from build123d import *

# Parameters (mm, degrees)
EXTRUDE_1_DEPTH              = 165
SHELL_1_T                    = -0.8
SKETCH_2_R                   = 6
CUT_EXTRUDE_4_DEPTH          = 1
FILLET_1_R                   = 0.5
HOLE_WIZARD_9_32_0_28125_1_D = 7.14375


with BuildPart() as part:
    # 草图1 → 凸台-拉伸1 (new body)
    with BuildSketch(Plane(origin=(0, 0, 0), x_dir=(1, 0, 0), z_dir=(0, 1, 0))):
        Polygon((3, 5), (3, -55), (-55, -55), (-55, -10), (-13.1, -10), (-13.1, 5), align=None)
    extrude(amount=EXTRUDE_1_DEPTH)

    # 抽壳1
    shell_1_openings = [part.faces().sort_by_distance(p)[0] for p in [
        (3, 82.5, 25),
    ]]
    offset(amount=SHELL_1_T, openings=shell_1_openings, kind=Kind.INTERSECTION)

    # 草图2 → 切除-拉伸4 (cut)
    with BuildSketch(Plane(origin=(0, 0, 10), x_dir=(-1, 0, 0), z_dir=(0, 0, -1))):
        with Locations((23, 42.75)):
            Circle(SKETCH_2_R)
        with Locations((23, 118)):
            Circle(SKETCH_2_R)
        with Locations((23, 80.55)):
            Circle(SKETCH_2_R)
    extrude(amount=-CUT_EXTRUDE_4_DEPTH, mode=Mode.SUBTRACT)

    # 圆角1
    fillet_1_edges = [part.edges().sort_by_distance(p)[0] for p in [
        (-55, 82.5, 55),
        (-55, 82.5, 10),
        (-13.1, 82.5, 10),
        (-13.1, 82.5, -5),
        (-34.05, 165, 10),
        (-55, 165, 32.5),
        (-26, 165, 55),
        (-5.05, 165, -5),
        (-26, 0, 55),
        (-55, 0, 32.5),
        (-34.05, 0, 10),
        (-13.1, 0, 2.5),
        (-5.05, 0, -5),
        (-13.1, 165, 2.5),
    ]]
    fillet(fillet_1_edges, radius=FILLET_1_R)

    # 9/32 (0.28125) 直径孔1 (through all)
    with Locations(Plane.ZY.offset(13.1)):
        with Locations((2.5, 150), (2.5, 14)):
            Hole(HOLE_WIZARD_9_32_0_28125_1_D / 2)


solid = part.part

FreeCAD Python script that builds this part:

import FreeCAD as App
import Part
import Sketcher
Q = App.Units.Quantity


def edges_at(feature, points):
    """Names of the edges that pass closest to the given points."""
    edges = feature.Shape.Edges
    near = lambda p: min(range(len(edges)), key=lambda i: edges[i].distToShape(Part.Vertex(*p))[0])
    return sorted({f"Edge{near(p) + 1}" for p in points})


def faces_at(feature, points):
    """Names of the faces that lie closest to the given points."""
    faces = feature.Shape.Faces
    near = lambda p: min(range(len(faces)), key=lambda i: faces[i].distToShape(Part.Vertex(*p))[0])
    return sorted({f"Face{near(p) + 1}" for p in points})


def add_polygon(sketch, points):
    """Adds a closed chain of lines whose ends are joined by coincident constraints."""
    first, n = sketch.GeometryCount, len(points)
    for a, b in zip(points, points[1:] + points[:1]):
        sketch.addGeometry(Part.LineSegment(App.Vector(*a, 0), App.Vector(*b, 0)), False)
    for i in range(n):
        sketch.addConstraint(Sketcher.Constraint("Coincident", first + i, 2, first + (i + 1) % n, 1))

doc = App.newDocument("Part")
body = doc.addObject("PartDesign::Body", "Body")

# Sketch on XZ plane
sketch1 = doc.addObject("Sketcher::SketchObject", "Sketch")
body.addObject(sketch1)
sketch1.AttachmentSupport = (doc.XZ_Plane, [""])
sketch1.MapMode = "FlatFace"
add_polygon(sketch1, [(3, 55), (3, -5), (-13.1, -5), (-13.1, 10), (-55, 10), (-55, 55)])  # lines 0-5
sketch1.addConstraint([
    Sketcher.Constraint("Vertical", 0),
    Sketcher.Constraint("Horizontal", 1),
    Sketcher.Constraint("Vertical", 2),
    Sketcher.Constraint("Horizontal", 3),
    Sketcher.Constraint("Vertical", 4),
    Sketcher.Constraint("Horizontal", 5),
    Sketcher.Constraint("DistanceX", 5, 1, 5, 2, Q("58 mm")),
    Sketcher.Constraint("DistanceY", 0, 2, 0, 1, Q("60 mm")),
    Sketcher.Constraint("DistanceY", 2, 1, 2, 2, Q("15 mm")),
    Sketcher.Constraint("DistanceX", 1, 2, 1, 1, Q("16.1 mm")),
    Sketcher.Constraint("DistanceX", -1, 1, 0, 2, Q("3 mm")),
    Sketcher.Constraint("DistanceY", 0, 2, -1, 1, Q("5 mm")),
])
pad1 = doc.addObject("PartDesign::Pad", "Pad")
body.addObject(pad1)
pad1.Profile = sketch1
pad1.Length = 165
pad1.Reversed = True
doc.recompute()

thickness = doc.addObject("PartDesign::Thickness", "Thickness")
body.addObject(thickness)
thickness.Base = (pad1, faces_at(pad1, [(3, 82.5, 25)]))
thickness.Value = 0.8
thickness.Reversed = True
thickness.Join = "Intersection"

# Sketch on XY plane
sketch2 = doc.addObject("Sketcher::SketchObject", "Sketch001")
body.addObject(sketch2)
sketch2.AttachmentSupport = (doc.XY_Plane, [""])
sketch2.MapMode = "FlatFace"
sketch2.AttachmentOffset = App.Placement(App.Vector(0, 0, 10), App.Rotation())
sketch2.addGeometry([
    Part.Circle(App.Vector(-23, 42.75, 0), App.Vector(0, 0, 1), 6),
    Part.Circle(App.Vector(-23, 118, 0), App.Vector(0, 0, 1), 6),
    Part.Circle(App.Vector(-23, 80.55, 0), App.Vector(0, 0, 1), 6),
], False)
sketch2.addConstraint([
    Sketcher.Constraint("Equal", 0, 1),
    Sketcher.Constraint("Equal", 1, 2),
    Sketcher.Constraint("Vertical", 0, 3, 1, 3),
    Sketcher.Constraint("Vertical", 1, 3, 2, 3),
    Sketcher.Constraint("Diameter", 0, Q("12 mm")),
    Sketcher.Constraint("DistanceX", 0, 3, -1, 1, Q("23 mm")),
    Sketcher.Constraint("DistanceY", -1, 1, 1, 3, Q("118 mm")),
    Sketcher.Constraint("DistanceY", 0, 3, 2, 3, Q("37.8 mm")),
    Sketcher.Constraint("DistanceY", -1, 1, 0, 3, Q("42.75 mm")),
])
pocket1 = doc.addObject("PartDesign::Pocket", "Pocket")
body.addObject(pocket1)
pocket1.Profile = sketch2
pocket1.Length = 1
pocket1.Reversed = True
doc.recompute()

fillet = doc.addObject("PartDesign::Fillet", "Fillet")
body.addObject(fillet)
fillet.Base = (pocket1, edges_at(pocket1, [
    (-55, 82.5, 55),
    (-55, 82.5, 10),
    (-13.1, 82.5, 10),
    (-13.1, 82.5, -5),
    (-34.05, 165, 10),
    (-55, 165, 32.5),
    (-26, 165, 55),
    (-5.05, 165, -5),
    (-26, 0, 55),
    (-55, 0, 32.5),
    (-34.05, 0, 10),
    (-13.1, 0, 2.5),
    (-5.05, 0, -5),
    (-13.1, 165, 2.5),
]))
fillet.Radius = 0.5

# Sketch on YZ plane
sketch3 = doc.addObject("Sketcher::SketchObject", "Sketch002")
body.addObject(sketch3)
sketch3.AttachmentSupport = (doc.YZ_Plane, [""])
sketch3.MapMode = "FlatFace"
sketch3.AttachmentOffset = App.Placement(App.Vector(0, 0, -13.1), App.Rotation())
sketch3.addGeometry([
    Part.Circle(App.Vector(150, 2.5, 0), App.Vector(0, 0, 1), 3.571875),
    Part.Circle(App.Vector(14, 2.5, 0), App.Vector(0, 0, 1), 3.571875),
], False)
sketch3.addConstraint([
    Sketcher.Constraint("Equal", 0, 1),
    Sketcher.Constraint("Horizontal", 0, 3, 1, 3),
    Sketcher.Constraint("DistanceX", -1, 1, 0, 3, Q("150 mm")),
    Sketcher.Constraint("DistanceX", -1, 1, 1, 3, Q("14 mm")),
    Sketcher.Constraint("DistanceY", -1, 1, 0, 3, Q("2.5 mm")),
    Sketcher.Constraint("Diameter", 0, Q("7.14375 mm")),
])
doc.recompute()
hole = doc.addObject("PartDesign::Hole", "Hole")
body.addObject(hole)
hole.Profile = sketch3
hole.ThreadType = "None"
hole.Diameter = 7.14375
hole.DepthType = "ThroughAll"
hole.Reversed = True

doc.recompute()
